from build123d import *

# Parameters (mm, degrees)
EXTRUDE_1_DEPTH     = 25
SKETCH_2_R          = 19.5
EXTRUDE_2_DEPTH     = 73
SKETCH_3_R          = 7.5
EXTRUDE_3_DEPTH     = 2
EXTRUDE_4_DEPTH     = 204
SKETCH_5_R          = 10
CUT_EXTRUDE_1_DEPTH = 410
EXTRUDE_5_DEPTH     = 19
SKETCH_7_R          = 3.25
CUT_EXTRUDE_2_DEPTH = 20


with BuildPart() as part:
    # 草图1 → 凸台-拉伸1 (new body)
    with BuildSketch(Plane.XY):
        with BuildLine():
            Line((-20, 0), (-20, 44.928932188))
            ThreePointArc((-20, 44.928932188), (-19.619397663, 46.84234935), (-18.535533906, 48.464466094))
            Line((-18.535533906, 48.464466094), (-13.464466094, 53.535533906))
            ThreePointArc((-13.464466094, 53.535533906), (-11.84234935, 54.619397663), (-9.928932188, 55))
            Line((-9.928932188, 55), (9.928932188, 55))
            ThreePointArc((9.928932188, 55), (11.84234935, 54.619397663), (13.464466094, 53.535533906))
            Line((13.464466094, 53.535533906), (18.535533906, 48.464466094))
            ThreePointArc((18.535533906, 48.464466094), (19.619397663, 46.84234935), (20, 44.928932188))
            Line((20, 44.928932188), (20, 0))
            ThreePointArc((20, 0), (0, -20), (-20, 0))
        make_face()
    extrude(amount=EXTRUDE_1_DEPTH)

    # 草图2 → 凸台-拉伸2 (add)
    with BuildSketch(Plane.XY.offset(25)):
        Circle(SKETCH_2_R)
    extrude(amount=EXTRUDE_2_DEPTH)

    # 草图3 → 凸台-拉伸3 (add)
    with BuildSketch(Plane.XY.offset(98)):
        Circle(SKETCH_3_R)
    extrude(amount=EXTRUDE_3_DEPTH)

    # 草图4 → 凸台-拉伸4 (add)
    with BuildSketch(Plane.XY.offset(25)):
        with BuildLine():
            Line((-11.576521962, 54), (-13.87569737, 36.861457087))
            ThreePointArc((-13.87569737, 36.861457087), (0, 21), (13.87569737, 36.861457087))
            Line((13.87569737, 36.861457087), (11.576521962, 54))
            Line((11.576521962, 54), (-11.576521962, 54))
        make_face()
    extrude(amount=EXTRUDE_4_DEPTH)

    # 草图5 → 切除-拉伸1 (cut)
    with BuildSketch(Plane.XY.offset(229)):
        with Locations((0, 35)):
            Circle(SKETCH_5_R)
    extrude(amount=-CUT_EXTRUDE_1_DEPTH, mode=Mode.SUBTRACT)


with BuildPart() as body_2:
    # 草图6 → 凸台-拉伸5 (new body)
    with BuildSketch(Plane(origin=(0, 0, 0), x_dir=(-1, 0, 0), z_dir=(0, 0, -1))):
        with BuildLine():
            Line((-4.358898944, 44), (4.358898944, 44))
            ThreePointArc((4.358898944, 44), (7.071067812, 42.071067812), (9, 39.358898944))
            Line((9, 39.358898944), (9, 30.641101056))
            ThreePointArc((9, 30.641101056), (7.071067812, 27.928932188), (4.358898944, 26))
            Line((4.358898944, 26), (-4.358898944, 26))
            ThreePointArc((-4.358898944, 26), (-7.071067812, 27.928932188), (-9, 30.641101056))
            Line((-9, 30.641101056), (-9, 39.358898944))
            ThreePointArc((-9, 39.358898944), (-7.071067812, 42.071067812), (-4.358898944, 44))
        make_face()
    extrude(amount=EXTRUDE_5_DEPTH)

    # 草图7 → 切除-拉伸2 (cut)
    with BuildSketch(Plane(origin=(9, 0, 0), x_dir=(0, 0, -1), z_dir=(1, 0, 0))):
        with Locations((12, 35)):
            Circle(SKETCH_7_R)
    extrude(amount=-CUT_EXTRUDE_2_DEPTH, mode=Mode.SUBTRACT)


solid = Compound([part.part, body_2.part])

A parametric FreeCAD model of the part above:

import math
import FreeCAD as App
import Part
import Sketcher

doc = App.newDocument("Part")
params = doc.addObject("Spreadsheet::Sheet", "Params")
for row, (alias, value) in enumerate([
    ("sketch1_radius", "20 mm"),
    ("sketch1_radius2", "5 mm"),
    ("pad1_length", "25 mm"),
    ("sketch2_diameter", "39 mm"),
    ("pad2_length", "73 mm"),
    ("sketch3_diameter", "15 mm"),
    ("pad3_length", "2 mm"),
    ("sketch4_radius", "14 mm"),
    ("pad4_length", "204 mm"),
    ("sketch5_diameter", "20 mm"),
    ("pocket1_length", "410 mm"),
    ("sketch6_radius", "10 mm"),
    ("pad5_length", "19 mm"),
    ("sketch7_diameter", "6.5 mm"),
    ("pocket2_length", "20 mm"),
], start=1):
    params.set(f"A{row}", alias)
    params.set(f"B{row}", "=" + value)
    params.setAlias(f"B{row}", alias)

body = doc.addObject("PartDesign::Body", "Body")

# Sketch on XY plane
sketch1 = doc.addObject("Sketcher::SketchObject", "Sketch")
body.addObject(sketch1)
sketch1.AttachmentSupport = (doc.XY_Plane, [""])
sketch1.MapMode = "FlatFace"
sketch1.addGeometry(Part.LineSegment(App.Vector(-20, 44.928932, 0), App.Vector(-20, 0, 0)), False)
sketch1.addGeometry(Part.ArcOfCircle(Part.Circle(App.Vector(0, 0, 0), App.Vector(0, 0, 1), 20), math.radians(180), math.radians(360)), False)
sketch1.addGeometry(Part.LineSegment(App.Vector(20, 0, 0), App.Vector(20, 44.928932, 0)), False)
sketch1.addGeometry(Part.ArcOfCircle(Part.Circle(App.Vector(15, 44.928932, 0), App.Vector(0, 0, 1), 5), math.radians(0), math.radians(45)), False)
sketch1.addGeometry(Part.LineSegment(App.Vector(18.535534, 48.464466, 0), App.Vector(13.464466, 53.535534, 0)), False)
sketch1.addGeometry(Part.ArcOfCircle(Part.Circle(App.Vector(9.928932, 50, 0), App.Vector(0, 0, 1), 5), math.radians(45), math.radians(90)), False)
sketch1.addGeometry(Part.LineSegment(App.Vector(9.928932, 55, 0), App.Vector(-9.928932, 55, 0)), False)
sketch1.addGeometry(Part.ArcOfCircle(Part.Circle(App.Vector(-9.928932, 50, 0), App.Vector(0, 0, 1), 5), math.radians(90), math.radians(135)), False)
sketch1.addGeometry(Part.LineSegment(App.Vector(-13.464466, 53.535534, 0), App.Vector(-18.535534, 48.464466, 0)), False)
sketch1.addGeometry(Part.ArcOfCircle(Part.Circle(App.Vector(-15, 44.928932, 0), App.Vector(0, 0, 1), 5), math.radians(135), math.radians(180)), False)
sketch1.addConstraint(Sketcher.Constraint("Tangent", 0, 2, 1, 1))
sketch1.addConstraint(Sketcher.Constraint("Tangent", 1, 2, 2, 1))
sketch1.addConstraint(Sketcher.Constraint("Tangent", 2, 2, 3, 1))
sketch1.addConstraint(Sketcher.Constraint("Tangent", 3, 2, 4, 1))
sketch1.addConstraint(Sketcher.Constraint("Tangent", 4, 2, 5, 1))
sketch1.addConstraint(Sketcher.Constraint("Tangent", 5, 2, 6, 1))
sketch1.addConstraint(Sketcher.Constraint("Tangent", 6, 2, 7, 1))
sketch1.addConstraint(Sketcher.Constraint("Tangent", 7, 2, 8, 1))
sketch1.addConstraint(Sketcher.Constraint("Tangent", 8, 2, 9, 1))
sketch1.addConstraint(Sketcher.Constraint("Tangent", 9, 2, 0, 1))
sketch1.addConstraint(Sketcher.Constraint("Vertical", 0))
sketch1.addConstraint(Sketcher.Constraint("Vertical", 2))
sketch1.addConstraint(Sketcher.Constraint("Horizontal", 6))
sketch1.addConstraint(Sketcher.Constraint("Coincident", 1, 3, -1, 1))
sketch1.addConstraint(Sketcher.Constraint("Equal", 3, 5))
sketch1.addConstraint(Sketcher.Constraint("Equal", 5, 7))
sketch1.addConstraint(Sketcher.Constraint("Equal", 7, 9))
sketch1.addConstraint(Sketcher.Constraint("Symmetric", 4, 2, 7, 2, -2))
sketch1.addConstraint(Sketcher.Constraint("Perpendicular", 4, 8))
sketch1.addConstraint(Sketcher.Constraint("Radius", 1, 20.0))
sketch1.addConstraint(Sketcher.Constraint("Radius", 3, 5.0))
sketch1.addConstraint(Sketcher.Constraint("DistanceY", -1, 1, 5, 3, 50.0))
sketch1.addConstraint(Sketcher.Constraint("DistanceX", 5, 3, 3, 2, 8.606602))
sketch1.setExpression("Constraints[19]", "Params.sketch1_radius")
sketch1.setExpression("Constraints[20]", "Params.sketch1_radius2")
pad1 = doc.addObject("PartDesign::Pad", "Pad")
body.addObject(pad1)
pad1.Profile = sketch1
pad1.setExpression("Length", "Params.pad1_length")

# Sketch on XY plane
sketch2 = doc.addObject("Sketcher::SketchObject", "Sketch001")
body.addObject(sketch2)
sketch2.AttachmentSupport = (doc.XY_Plane, [""])
sketch2.MapMode = "FlatFace"
sketch2.AttachmentOffset = App.Placement(App.Vector(0, 0, 25), App.Rotation())
sketch2.addGeometry(Part.Circle(App.Vector(0, 0, 0), App.Vector(0, 0, 1), 19.5), False)
sketch2.addConstraint(Sketcher.Constraint("Coincident", 0, 3, -1, 1))
sketch2.addConstraint(Sketcher.Constraint("Diameter", 0, 39.0))
sketch2.setExpression("Constraints[1]", "Params.sketch2_diameter")
pad2 = doc.addObject("PartDesign::Pad", "Pad001")
body.addObject(pad2)
pad2.Profile = sketch2
pad2.setExpression("Length", "Params.pad2_length")

# Sketch on XY plane
sketch3 = doc.addObject("Sketcher::SketchObject", "Sketch002")
body.addObject(sketch3)
sketch3.AttachmentSupport = (doc.XY_Plane, [""])
sketch3.MapMode = "FlatFace"
sketch3.AttachmentOffset = App.Placement(App.Vector(0, 0, 98), App.Rotation())
sketch3.addGeometry(Part.Circle(App.Vector(0, 0, 0), App.Vector(0, 0, 1), 7.5), False)
sketch3.addConstraint(Sketcher.Constraint("Coincident", 0, 3, -1, 1))
sketch3.addConstraint(Sketcher.Constraint("Diameter", 0, 15.0))
sketch3.setExpression("Constraints[1]", "Params.sketch3_diameter")
pad3 = doc.addObject("PartDesign::Pad", "Pad002")
body.addObject(pad3)
pad3.Profile = sketch3
pad3.setExpression("Length", "Params.pad3_length")

# Sketch on XY plane
sketch4 = doc.addObject("Sketcher::SketchObject", "Sketch003")
body.addObject(sketch4)
sketch4.AttachmentSupport = (doc.XY_Plane, [""])
sketch4.MapMode = "FlatFace"
sketch4.AttachmentOffset = App.Placement(App.Vector(0, 0, 25), App.Rotation())
sketch4.addGeometry(Part.LineSegment(App.Vector(-11.576522, 54, 0), App.Vector(-13.875697, 36.861457, 0)), False)
sketch4.addGeometry(Part.ArcOfCircle(Part.Circle(App.Vector(0, 35, 0), App.Vector(0, 0, 1), 14), math.radians(172.359256), math.radians(367.640744)), False)
sketch4.addGeometry(Part.LineSegment(App.Vector(13.875697, 36.861457, 0), App.Vector(11.576522, 54, 0)), False)
sketch4.addGeometry(Part.LineSegment(App.Vector(11.576522, 54, 0), App.Vector(-11.576522, 54, 0)), False)
sketch4.addConstraint(Sketcher.Constraint("Tangent", 0, 2, 1, 1))
sketch4.addConstraint(Sketcher.Constraint("Tangent", 1, 2, 2, 1))
sketch4.addConstraint(Sketcher.Constraint("Coincident", 2, 2, 3, 1))
sketch4.addConstraint(Sketcher.Constraint("Coincident", 3, 2, 0, 1))
sketch4.addConstraint(Sketcher.Constraint("Horizontal", 3))
sketch4.addConstraint(Sketcher.Constraint("Symmetric", 0, 2, 1, 2, -2))
sketch4.addConstraint(Sketcher.Constraint("Radius", 1, 14.0))
sketch4.addConstraint(Sketcher.Constraint("DistanceY", -1, 1, 1, 3, 35.0))
sketch4.addConstraint(Sketcher.Constraint("DistanceY", -1, 1, 2, 2, 54.0))
sketch4.addConstraint(Sketcher.Constraint("DistanceX", 3, 2, 3, 1, 23.153044))
sketch4.setExpression("Constraints[6]", "Params.sketch4_radius")
pad4 = doc.addObject("PartDesign::Pad", "Pad003")
body.addObject(pad4)
pad4.Profile = sketch4
pad4.setExpression("Length", "Params.pad4_length")

# Sketch on XY plane
sketch5 = doc.addObject("Sketcher::SketchObject", "Sketch004")
body.addObject(sketch5)
sketch5.AttachmentSupport = (doc.XY_Plane, [""])
sketch5.MapMode = "FlatFace"
sketch5.AttachmentOffset = App.Placement(App.Vector(0, 0, 229), App.Rotation())
sketch5.addGeometry(Part.Circle(App.Vector(0, 35, 0), App.Vector(0, 0, 1), 10), False)
sketch5.addConstraint(Sketcher.Constraint("PointOnObject", 0, 3, -2))
sketch5.addConstraint(Sketcher.Constraint("Diameter", 0, 20.0))
sketch5.addConstraint(Sketcher.Constraint("DistanceY", -1, 1, 0, 3, 35.0))
sketch5.setExpression("Constraints[1]", "Params.sketch5_diameter")
pocket1 = doc.addObject("PartDesign::Pocket", "Pocket")
body.addObject(pocket1)
pocket1.Profile = sketch5
pocket1.setExpression("Length", "Params.pocket1_length")
body2 = doc.addObject("PartDesign::Body", "Body001")

# Sketch on XY plane
sketch6 = doc.addObject("Sketcher::SketchObject", "Sketch005")
body2.addObject(sketch6)
sketch6.AttachmentSupport = (doc.getObject("XY_Plane001"), [""])
sketch6.MapMode = "FlatFace"
sketch6.addGeometry(Part.LineSegment(App.Vector(-4.358899, 44, 0), App.Vector(4.358899, 44, 0)), False)
sketch6.addGeometry(Part.ArcOfCircle(Part.Circle(App.Vector(0, 35, 0), App.Vector(0, 0, 1), 10), math.radians(25.841933), math.radians(64.158067)), False)
sketch6.addGeometry(Part.LineSegment(App.Vector(9, 39.358899, 0), App.Vector(9, 30.641101, 0)), False)
sketch6.addGeometry(Part.ArcOfCircle(Part.Circle(App.Vector(0, 35, 0), App.Vector(0, 0, 1), 10), math.radians(-64.158067), math.radians(-25.841933)), False)
sketch6.addGeometry(Part.LineSegment(App.Vector(4.358899, 26, 0), App.Vector(-4.358899, 26, 0)), False)
sketch6.addGeometry(Part.ArcOfCircle(Part.Circle(App.Vector(0, 35, 0), App.Vector(0, 0, 1), 10), math.radians(-154.158067), math.radians(-115.841933)), False)
sketch6.addGeometry(Part.LineSegment(App.Vector(-9, 30.641101, 0), App.Vector(-9, 39.358899, 0)), False)
sketch6.addGeometry(Part.ArcOfCircle(Part.Circle(App.Vector(0, 35, 0), App.Vector(0, 0, 1), 10), math.radians(115.841933), math.radians(154.158067)), False)
sketch6.addConstraint(Sketcher.Constraint("Coincident", 0, 2, 1, 2))
sketch6.addConstraint(Sketcher.Constraint("Coincident", 1, 1, 2, 1))
sketch6.addConstraint(Sketcher.Constraint("Coincident", 2, 2, 3, 2))
sketch6.addConstraint(Sketcher.Constraint("Coincident", 3, 1, 4, 1))
sketch6.addConstraint(Sketcher.Constraint("Coincident", 4, 2, 5, 2))
sketch6.addConstraint(Sketcher.Constraint("Coincident", 5, 1, 6, 1))
sketch6.addConstraint(Sketcher.Constraint("Coincident", 6, 2, 7, 2))
sketch6.addConstraint(Sketcher.Constraint("Coincident", 7, 1, 0, 1))
sketch6.addConstraint(Sketcher.Constraint("Horizontal", 0))
sketch6.addConstraint(Sketcher.Constraint("Vertical", 2))
sketch6.addConstraint(Sketcher.Constraint("Horizontal", 4))
sketch6.addConstraint(Sketcher.Constraint("Vertical", 6))
sketch6.addConstraint(Sketcher.Constraint("Coincident", 3, 3, 1, 3))
sketch6.addConstraint(Sketcher.Constraint("Coincident", 5, 3, 1, 3))
sketch6.addConstraint(Sketcher.Constraint("Coincident", 7, 3, 1, 3))
sketch6.addConstraint(Sketcher.Constraint("Equal", 1, 3))
sketch6.addConstraint(Sketcher.Constraint("Equal", 3, 5))
sketch6.addConstraint(Sketcher.Constraint("Equal", 5, 7))
sketch6.addConstraint(Sketcher.Constraint("Symmetric", 2, 2, 5, 1, -2))
sketch6.addConstraint(Sketcher.Constraint("Vertical", 0, 2, 3, 1))
sketch6.addConstraint(Sketcher.Constraint("Equal", 4, 2))
sketch6.addConstraint(Sketcher.Constraint("Radius", 1, 10.0))
sketch6.addConstraint(Sketcher.Constraint("DistanceY", -1, 1, 1, 3, 35.0))
sketch6.addConstraint(Sketcher.Constraint("DistanceY", -1, 1, 0, 2, 44.0))
sketch6.setExpression("Constraints[21]", "Params.sketch6_radius")
pad5 = doc.addObject("PartDesign::Pad", "Pad004")
body2.addObject(pad5)
pad5.Profile = sketch6
pad5.setExpression("Length", "Params.pad5_length")
pad5.Reversed = True

# Sketch on YZ plane
sketch7 = doc.addObject("Sketcher::SketchObject", "Sketch006")
body2.addObject(sketch7)
sketch7.AttachmentSupport = (doc.getObject("YZ_Plane001"), [""])
sketch7.MapMode = "FlatFace"
sketch7.AttachmentOffset = App.Placement(App.Vector(0, 0, 9), App.Rotation())
sketch7.addGeometry(Part.Circle(App.Vector(35, -12, 0), App.Vector(0, 0, 1), 3.25), False)
sketch7.addConstraint(Sketcher.Constraint("Diameter", 0, 6.5))
sketch7.addConstraint(Sketcher.Constraint("DistanceX", -1, 1, 0, 3, 35.0))
sketch7.addConstraint(Sketcher.Constraint("DistanceY", 0, 3, -1, 1, 12.0))
sketch7.setExpression("Constraints[0]", "Params.sketch7_diameter")
pocket2 = doc.addObject("PartDesign::Pocket", "Pocket001")
body2.addObject(pocket2)
pocket2.Profile = sketch7
pocket2.setExpression("Length", "Params.pocket2_length")

doc.recompute()
